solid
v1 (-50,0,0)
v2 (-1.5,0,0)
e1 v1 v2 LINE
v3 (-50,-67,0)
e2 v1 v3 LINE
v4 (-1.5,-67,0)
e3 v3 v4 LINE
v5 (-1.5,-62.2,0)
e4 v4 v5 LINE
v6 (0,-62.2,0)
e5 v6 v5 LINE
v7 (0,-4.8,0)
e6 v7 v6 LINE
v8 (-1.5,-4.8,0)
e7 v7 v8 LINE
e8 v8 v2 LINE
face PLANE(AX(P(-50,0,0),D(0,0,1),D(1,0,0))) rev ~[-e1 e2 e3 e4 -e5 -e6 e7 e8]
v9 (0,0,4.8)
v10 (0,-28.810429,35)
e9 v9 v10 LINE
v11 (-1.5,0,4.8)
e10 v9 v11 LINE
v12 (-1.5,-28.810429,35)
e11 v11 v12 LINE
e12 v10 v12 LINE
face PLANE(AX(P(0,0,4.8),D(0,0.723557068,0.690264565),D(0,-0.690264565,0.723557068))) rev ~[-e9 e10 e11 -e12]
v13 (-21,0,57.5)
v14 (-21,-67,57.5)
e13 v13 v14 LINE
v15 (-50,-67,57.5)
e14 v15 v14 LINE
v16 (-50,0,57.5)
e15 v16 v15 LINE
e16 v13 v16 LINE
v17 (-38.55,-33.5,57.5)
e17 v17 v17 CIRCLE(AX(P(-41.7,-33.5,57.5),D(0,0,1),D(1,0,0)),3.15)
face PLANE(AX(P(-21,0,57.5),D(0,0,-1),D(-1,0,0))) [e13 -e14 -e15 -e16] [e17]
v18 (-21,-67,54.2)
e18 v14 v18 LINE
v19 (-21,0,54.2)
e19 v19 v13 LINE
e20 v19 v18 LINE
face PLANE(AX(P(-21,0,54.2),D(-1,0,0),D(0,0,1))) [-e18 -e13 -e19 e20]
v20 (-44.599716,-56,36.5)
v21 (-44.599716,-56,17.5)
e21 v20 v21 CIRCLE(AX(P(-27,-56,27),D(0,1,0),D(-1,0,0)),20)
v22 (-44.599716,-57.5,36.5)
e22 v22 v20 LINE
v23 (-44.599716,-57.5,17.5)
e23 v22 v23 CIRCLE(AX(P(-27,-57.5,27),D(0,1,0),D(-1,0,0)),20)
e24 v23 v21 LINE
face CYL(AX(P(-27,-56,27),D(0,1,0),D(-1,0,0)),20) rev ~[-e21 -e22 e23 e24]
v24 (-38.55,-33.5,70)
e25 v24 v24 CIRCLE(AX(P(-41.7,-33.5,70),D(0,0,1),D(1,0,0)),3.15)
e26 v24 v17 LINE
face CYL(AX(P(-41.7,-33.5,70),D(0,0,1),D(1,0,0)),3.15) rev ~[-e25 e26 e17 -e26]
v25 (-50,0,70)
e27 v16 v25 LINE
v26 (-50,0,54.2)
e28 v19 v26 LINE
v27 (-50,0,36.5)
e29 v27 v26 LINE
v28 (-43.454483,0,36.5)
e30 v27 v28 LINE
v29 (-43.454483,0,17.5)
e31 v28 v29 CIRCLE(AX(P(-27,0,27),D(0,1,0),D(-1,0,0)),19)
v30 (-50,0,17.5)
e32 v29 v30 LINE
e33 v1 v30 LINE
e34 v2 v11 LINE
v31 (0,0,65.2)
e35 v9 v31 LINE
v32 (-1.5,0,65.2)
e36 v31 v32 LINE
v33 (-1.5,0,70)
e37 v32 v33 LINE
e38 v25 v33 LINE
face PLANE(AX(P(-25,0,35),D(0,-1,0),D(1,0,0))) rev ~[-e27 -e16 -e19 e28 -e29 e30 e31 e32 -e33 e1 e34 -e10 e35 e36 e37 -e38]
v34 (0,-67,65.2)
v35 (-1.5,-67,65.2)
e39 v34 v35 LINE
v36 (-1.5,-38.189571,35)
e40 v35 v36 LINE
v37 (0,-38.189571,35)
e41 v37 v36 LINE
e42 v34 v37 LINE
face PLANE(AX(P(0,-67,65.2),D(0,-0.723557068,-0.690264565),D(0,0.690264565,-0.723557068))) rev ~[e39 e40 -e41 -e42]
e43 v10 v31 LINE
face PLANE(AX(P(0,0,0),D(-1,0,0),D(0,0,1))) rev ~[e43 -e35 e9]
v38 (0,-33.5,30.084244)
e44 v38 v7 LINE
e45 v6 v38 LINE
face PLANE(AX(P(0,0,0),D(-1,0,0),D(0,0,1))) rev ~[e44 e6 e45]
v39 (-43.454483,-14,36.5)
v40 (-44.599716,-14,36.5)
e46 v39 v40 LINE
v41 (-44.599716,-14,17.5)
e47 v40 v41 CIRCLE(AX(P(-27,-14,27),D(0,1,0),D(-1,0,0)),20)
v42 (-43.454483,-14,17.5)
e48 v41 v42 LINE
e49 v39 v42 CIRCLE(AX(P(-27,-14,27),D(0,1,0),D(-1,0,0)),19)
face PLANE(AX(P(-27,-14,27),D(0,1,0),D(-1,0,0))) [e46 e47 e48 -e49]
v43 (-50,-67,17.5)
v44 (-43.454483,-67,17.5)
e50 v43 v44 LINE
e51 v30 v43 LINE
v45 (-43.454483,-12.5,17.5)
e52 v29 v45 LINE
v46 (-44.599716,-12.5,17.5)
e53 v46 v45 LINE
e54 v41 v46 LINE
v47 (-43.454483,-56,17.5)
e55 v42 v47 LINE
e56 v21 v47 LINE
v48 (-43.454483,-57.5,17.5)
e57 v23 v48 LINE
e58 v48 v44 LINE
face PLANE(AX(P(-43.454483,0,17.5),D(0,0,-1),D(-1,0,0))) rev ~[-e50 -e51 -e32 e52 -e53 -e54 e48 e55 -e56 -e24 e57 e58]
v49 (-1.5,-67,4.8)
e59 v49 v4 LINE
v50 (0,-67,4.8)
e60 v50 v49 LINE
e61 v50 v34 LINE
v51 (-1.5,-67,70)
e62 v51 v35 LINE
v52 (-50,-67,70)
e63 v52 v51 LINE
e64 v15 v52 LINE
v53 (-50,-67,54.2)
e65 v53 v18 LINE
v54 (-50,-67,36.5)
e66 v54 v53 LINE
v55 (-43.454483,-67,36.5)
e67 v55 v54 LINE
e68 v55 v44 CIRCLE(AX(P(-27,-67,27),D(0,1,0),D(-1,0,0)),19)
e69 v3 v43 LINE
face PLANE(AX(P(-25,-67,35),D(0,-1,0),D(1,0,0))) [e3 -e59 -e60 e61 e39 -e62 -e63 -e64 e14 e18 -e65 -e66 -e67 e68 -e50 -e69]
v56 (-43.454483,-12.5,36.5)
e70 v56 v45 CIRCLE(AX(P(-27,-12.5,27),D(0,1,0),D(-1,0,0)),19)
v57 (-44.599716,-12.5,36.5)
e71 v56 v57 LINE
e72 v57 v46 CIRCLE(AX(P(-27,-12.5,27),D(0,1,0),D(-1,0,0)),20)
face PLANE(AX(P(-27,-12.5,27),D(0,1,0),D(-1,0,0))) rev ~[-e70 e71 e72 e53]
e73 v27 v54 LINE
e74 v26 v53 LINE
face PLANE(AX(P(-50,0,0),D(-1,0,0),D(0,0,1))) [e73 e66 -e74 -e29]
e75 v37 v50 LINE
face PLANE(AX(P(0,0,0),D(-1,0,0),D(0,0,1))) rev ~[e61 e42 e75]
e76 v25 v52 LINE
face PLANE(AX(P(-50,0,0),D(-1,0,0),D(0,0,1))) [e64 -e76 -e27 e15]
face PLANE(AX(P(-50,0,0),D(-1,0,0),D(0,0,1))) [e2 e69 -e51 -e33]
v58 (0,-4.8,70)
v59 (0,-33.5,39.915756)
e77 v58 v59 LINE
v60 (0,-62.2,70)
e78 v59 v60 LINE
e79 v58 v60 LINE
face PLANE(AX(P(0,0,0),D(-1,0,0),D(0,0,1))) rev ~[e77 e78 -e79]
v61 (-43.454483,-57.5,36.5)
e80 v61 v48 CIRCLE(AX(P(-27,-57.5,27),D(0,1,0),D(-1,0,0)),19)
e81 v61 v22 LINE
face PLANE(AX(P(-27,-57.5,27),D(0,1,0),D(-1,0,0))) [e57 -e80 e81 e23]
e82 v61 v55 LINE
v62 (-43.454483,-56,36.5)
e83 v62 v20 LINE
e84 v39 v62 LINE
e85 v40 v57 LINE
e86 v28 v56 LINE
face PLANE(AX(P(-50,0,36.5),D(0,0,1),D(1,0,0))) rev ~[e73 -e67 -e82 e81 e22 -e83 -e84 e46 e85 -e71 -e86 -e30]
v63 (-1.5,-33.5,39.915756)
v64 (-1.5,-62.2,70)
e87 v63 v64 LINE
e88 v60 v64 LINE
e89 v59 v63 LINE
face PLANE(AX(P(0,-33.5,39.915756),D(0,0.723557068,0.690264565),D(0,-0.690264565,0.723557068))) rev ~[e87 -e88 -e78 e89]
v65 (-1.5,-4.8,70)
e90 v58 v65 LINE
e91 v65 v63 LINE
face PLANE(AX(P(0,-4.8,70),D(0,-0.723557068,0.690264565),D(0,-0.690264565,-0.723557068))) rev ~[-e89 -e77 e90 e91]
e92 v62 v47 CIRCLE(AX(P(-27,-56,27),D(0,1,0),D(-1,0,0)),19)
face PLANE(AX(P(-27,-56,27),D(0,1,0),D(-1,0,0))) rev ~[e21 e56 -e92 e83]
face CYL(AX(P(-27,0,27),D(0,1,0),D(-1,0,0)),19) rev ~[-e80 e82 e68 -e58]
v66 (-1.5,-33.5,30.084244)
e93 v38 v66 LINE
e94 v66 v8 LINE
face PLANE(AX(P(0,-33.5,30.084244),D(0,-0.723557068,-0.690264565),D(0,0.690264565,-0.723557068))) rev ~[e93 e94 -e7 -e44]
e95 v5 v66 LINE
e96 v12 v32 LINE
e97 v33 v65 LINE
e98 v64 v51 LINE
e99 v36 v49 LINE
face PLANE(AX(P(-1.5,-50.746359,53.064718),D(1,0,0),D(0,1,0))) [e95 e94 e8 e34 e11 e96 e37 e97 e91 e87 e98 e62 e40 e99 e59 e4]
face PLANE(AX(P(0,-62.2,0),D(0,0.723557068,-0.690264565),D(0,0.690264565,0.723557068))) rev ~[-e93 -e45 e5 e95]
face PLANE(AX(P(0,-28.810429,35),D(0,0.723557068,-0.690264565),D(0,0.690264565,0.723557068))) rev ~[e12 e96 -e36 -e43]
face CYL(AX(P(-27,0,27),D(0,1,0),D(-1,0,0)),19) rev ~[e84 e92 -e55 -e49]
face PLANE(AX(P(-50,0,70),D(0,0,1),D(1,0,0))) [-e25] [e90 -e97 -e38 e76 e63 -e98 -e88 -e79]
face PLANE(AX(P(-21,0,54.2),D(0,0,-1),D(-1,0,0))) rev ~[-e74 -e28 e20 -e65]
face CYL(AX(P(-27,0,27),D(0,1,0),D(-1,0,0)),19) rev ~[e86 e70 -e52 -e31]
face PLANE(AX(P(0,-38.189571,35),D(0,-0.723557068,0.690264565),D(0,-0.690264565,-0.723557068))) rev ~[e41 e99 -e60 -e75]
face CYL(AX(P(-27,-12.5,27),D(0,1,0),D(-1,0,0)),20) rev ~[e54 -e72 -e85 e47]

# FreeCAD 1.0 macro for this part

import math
import FreeCAD as App
import Part
import Sketcher

V = App.Vector
Q = App.Units.Quantity

doc = App.newDocument("Part")
body = doc.addObject("PartDesign::Body", "Body")

# Sketch on XZ plane
sketch1 = body.newObject("Sketcher::SketchObject", "Sketch")
sketch1.AttachmentSupport = (doc.getObject("XZ_Plane"), [""])
sketch1.MapMode = "FlatFace"
sketch1.addGeometry(Part.LineSegment(V(-50, 70, 0), V(-50, 0, 0)), False)
sketch1.addGeometry(Part.LineSegment(V(-50, 0, 0), V(0, 0, 0)), False)
sketch1.addGeometry(Part.LineSegment(V(0, 0, 0), V(0, 70, 0)), False)
sketch1.addGeometry(Part.LineSegment(V(0, 70, 0), V(-50, 70, 0)), False)
sketch1.addConstraint(Sketcher.Constraint("Coincident", 0, 2, 1, 1))
sketch1.addConstraint(Sketcher.Constraint("Coincident", 1, 2, 2, 1))
sketch1.addConstraint(Sketcher.Constraint("Coincident", 2, 2, 3, 1))
sketch1.addConstraint(Sketcher.Constraint("Coincident", 3, 2, 0, 1))
sketch1.addConstraint(Sketcher.Constraint("Vertical", 0))
sketch1.addConstraint(Sketcher.Constraint("Horizontal", 1))
sketch1.addConstraint(Sketcher.Constraint("Vertical", 2))
sketch1.addConstraint(Sketcher.Constraint("Horizontal", 3))
sketch1.addConstraint(Sketcher.Constraint("Coincident", 1, 2, -1, 1))
sketch1.addConstraint(Sketcher.Constraint("DistanceX", 1, 1, 1, 2, Q("50 mm")))
sketch1.addConstraint(Sketcher.Constraint("DistanceY", 0, 2, 0, 1, Q("70 mm")))
pad1 = body.newObject("PartDesign::Pad", "Pad")
pad1.Profile = sketch1
pad1.Length = 67

# Sketch on YZ plane
sketch2 = body.newObject("Sketcher::SketchObject", "Sketch001")
sketch2.AttachmentSupport = (doc.getObject("YZ_Plane"), [""])
sketch2.MapMode = "FlatFace"
sketch2.addGeometry(Part.LineSegment(V(-67, 70, 0), V(-67, 65.2, 0)), False)
sketch2.addGeometry(Part.LineSegment(V(-67, 65.2, 0), V(-38.189571, 35, 0)), False)
sketch2.addGeometry(Part.LineSegment(V(-38.189571, 35, 0), V(-67, 4.8, 0)), False)
sketch2.addGeometry(Part.LineSegment(V(-67, 4.8, 0), V(-67, 0, 0)), False)
sketch2.addGeometry(Part.LineSegment(V(-67, 0, 0), V(-62.2, 0, 0)), False)
sketch2.addGeometry(Part.LineSegment(V(-62.2, 0, 0), V(-33.5, 30.084244, 0)), False)
sketch2.addGeometry(Part.LineSegment(V(-33.5, 30.084244, 0), V(-4.8, 0, 0)), False)
sketch2.addGeometry(Part.LineSegment(V(-4.8, 0, 0), V(0, 0, 0)), False)
sketch2.addGeometry(Part.LineSegment(V(0, 0, 0), V(0, 4.8, 0)), False)
sketch2.addGeometry(Part.LineSegment(V(0, 4.8, 0), V(-28.810429, 35, 0)), False)
sketch2.addGeometry(Part.LineSegment(V(-28.810429, 35, 0), V(0, 65.2, 0)), False)
sketch2.addGeometry(Part.LineSegment(V(0, 65.2, 0), V(0, 70, 0)), False)
sketch2.addGeometry(Part.LineSegment(V(0, 70, 0), V(-4.8, 70, 0)), False)
sketch2.addGeometry(Part.LineSegment(V(-4.8, 70, 0), V(-33.5, 39.915756, 0)), False)
sketch2.addGeometry(Part.LineSegment(V(-33.5, 39.915756, 0), V(-62.2, 70, 0)), False)
sketch2.addGeometry(Part.LineSegment(V(-62.2, 70, 0), V(-67, 70, 0)), False)
sketch2.addConstraint(Sketcher.Constraint("Coincident", 0, 2, 1, 1))
sketch2.addConstraint(Sketcher.Constraint("Coincident", 1, 2, 2, 1))
sketch2.addConstraint(Sketcher.Constraint("Coincident", 2, 2, 3, 1))
sketch2.addConstraint(Sketcher.Constraint("Coincident", 3, 2, 4, 1))
sketch2.addConstraint(Sketcher.Constraint("Coincident", 4, 2, 5, 1))
sketch2.addConstraint(Sketcher.Constraint("Coincident", 5, 2, 6, 1))
sketch2.addConstraint(Sketcher.Constraint("Coincident", 6, 2, 7, 1))
sketch2.addConstraint(Sketcher.Constraint("Coincident", 7, 2, 8, 1))
sketch2.addConstraint(Sketcher.Constraint("Coincident", 8, 2, 9, 1))
sketch2.addConstraint(Sketcher.Constraint("Coincident", 9, 2, 10, 1))
sketch2.addConstraint(Sketcher.Constraint("Coincident", 10, 2, 11, 1))
sketch2.addConstraint(Sketcher.Constraint("Coincident", 11, 2, 12, 1))
sketch2.addConstraint(Sketcher.Constraint("Coincident", 12, 2, 13, 1))
sketch2.addConstraint(Sketcher.Constraint("Coincident", 13, 2, 14, 1))
sketch2.addConstraint(Sketcher.Constraint("Coincident", 14, 2, 15, 1))
sketch2.addConstraint(Sketcher.Constraint("Coincident", 15, 2, 0, 1))
sketch2.addConstraint(Sketcher.Constraint("Vertical", 0))
sketch2.addConstraint(Sketcher.Constraint("Vertical", 3))
sketch2.addConstraint(Sketcher.Constraint("Horizontal", 4))
sketch2.addConstraint(Sketcher.Constraint("Horizontal", 7))
sketch2.addConstraint(Sketcher.Constraint("Vertical", 8))
sketch2.addConstraint(Sketcher.Constraint("Vertical", 11))
sketch2.addConstraint(Sketcher.Constraint("Horizontal", 12))
sketch2.addConstraint(Sketcher.Constraint("Horizontal", 15))
sketch2.addConstraint(Sketcher.Constraint("Coincident", 7, 2, -1, 1))
sketch2.addConstraint(Sketcher.Constraint("PointOnObject", 3, 2, -1))
sketch2.addConstraint(Sketcher.Constraint("PointOnObject", 10, 2, -2))
sketch2.addConstraint(Sketcher.Constraint("Parallel", 2, 5))
sketch2.addConstraint(Sketcher.Constraint("Parallel", 1, 6))
sketch2.addConstraint(Sketcher.Constraint("Parallel", 6, 9))
sketch2.addConstraint(Sketcher.Constraint("Parallel", 5, 10))
sketch2.addConstraint(Sketcher.Constraint("Parallel", 10, 13))
sketch2.addConstraint(Sketcher.Constraint("Parallel", 9, 14))
sketch2.addConstraint(Sketcher.Constraint("Horizontal", 2, 2, 8, 2))
sketch2.addConstraint(Sketcher.Constraint("Horizontal", 1, 2, 9, 2))
sketch2.addConstraint(Sketcher.Constraint("Horizontal", 0, 2, 10, 2))
sketch2.addConstraint(Sketcher.Constraint("Horizontal", 12, 2, 14, 2))
sketch2.addConstraint(Sketcher.Constraint("Vertical", 0, 2, 2, 2))
sketch2.addConstraint(Sketcher.Constraint("Vertical", 6, 2, 12, 2))
sketch2.addConstraint(Sketcher.Constraint("Vertical", 5, 2, 13, 2))
sketch2.addConstraint(Sketcher.Constraint("Equal", 4, 7))
sketch2.addConstraint(Sketcher.Constraint("Equal", 15, 0))
sketch2.addConstraint(Sketcher.Constraint("Equal", 0, 3))
sketch2.addConstraint(Sketcher.Constraint("DistanceX", 4, 1, 4, 2, Q("4.8 mm")))
sketch2.addConstraint(Sketcher.Constraint("DistanceX", 0, 2, -1, 1, Q("67 mm")))
sketch2.addConstraint(Sketcher.Constraint("DistanceY", -1, 1, 1, 2, Q("35 mm")))
sketch2.addConstraint(Sketcher.Constraint("Distance", 1, Q("41.738242 mm")))
pocket1 = body.newObject("PartDesign::Pocket", "Pocket")
pocket1.Profile = sketch2
pocket1.Length = 1.5

# Sketch on XZ plane
sketch3 = body.newObject("Sketcher::SketchObject", "Sketch002")
sketch3.AttachmentSupport = (doc.getObject("XZ_Plane"), [""])
sketch3.MapMode = "FlatFace"
sketch3.addGeometry(Part.LineSegment(V(-21, 57.5, 0), V(-21, 54.2, 0)), False)
sketch3.addGeometry(Part.LineSegment(V(-21, 54.2, 0), V(-50, 54.2, 0)), False)
sketch3.addGeometry(Part.LineSegment(V(-50, 54.2, 0), V(-50, 57.5, 0)), False)
sketch3.addGeometry(Part.LineSegment(V(-50, 57.5, 0), V(-21, 57.5, 0)), False)
sketch3.addGeometry(Part.ArcOfCircle(Part.Circle(V(-27, 27, 0), V(0, 0, 1), 19), math.radians(-150), math.radians(150)), False)
sketch3.addGeometry(Part.LineSegment(V(-43.454483, 17.5, 0), V(-50, 17.5, 0)), False)
sketch3.addGeometry(Part.LineSegment(V(-50, 17.5, 0), V(-50, 36.5, 0)), False)
sketch3.addGeometry(Part.LineSegment(V(-50, 36.5, 0), V(-43.454483, 36.5, 0)), False)
sketch3.addConstraint(Sketcher.Constraint("Coincident", 0, 2, 1, 1))
sketch3.addConstraint(Sketcher.Constraint("Coincident", 1, 2, 2, 1))
sketch3.addConstraint(Sketcher.Constraint("Coincident", 2, 2, 3, 1))
sketch3.addConstraint(Sketcher.Constraint("Coincident", 3, 2, 0, 1))
sketch3.addConstraint(Sketcher.Constraint("Coincident", 4, 1, 5, 1))
sketch3.addConstraint(Sketcher.Constraint("Coincident", 5, 2, 6, 1))
sketch3.addConstraint(Sketcher.Constraint("Coincident", 6, 2, 7, 1))
sketch3.addConstraint(Sketcher.Constraint("Coincident", 7, 2, 4, 2))
sketch3.addConstraint(Sketcher.Constraint("Vertical", 0))
sketch3.addConstraint(Sketcher.Constraint("Horizontal", 1))
sketch3.addConstraint(Sketcher.Constraint("Vertical", 2))
sketch3.addConstraint(Sketcher.Constraint("Horizontal", 3))
sketch3.addConstraint(Sketcher.Constraint("Horizontal", 5))
sketch3.addConstraint(Sketcher.Constraint("Vertical", 6))
sketch3.addConstraint(Sketcher.Constraint("Horizontal", 7))
sketch3.addConstraint(Sketcher.Constraint("Vertical", 2, 2, 5, 2))
sketch3.addConstraint(Sketcher.Constraint("Vertical", 4, 1, 7, 2))
sketch3.addConstraint(Sketcher.Constraint("Radius", 4, Q("19 mm")))
sketch3.addConstraint(Sketcher.Constraint("DistanceX", 1, 2, 1, 1, Q("29 mm")))
sketch3.addConstraint(Sketcher.Constraint("DistanceY", 6, 1, 6, 2, Q("19 mm")))
sketch3.addConstraint(Sketcher.Constraint("DistanceY", 0, 2, 0, 1, Q("3.3 mm")))
sketch3.addConstraint(Sketcher.Constraint("DistanceX", 4, 3, -1, 1, Q("27 mm")))
sketch3.addConstraint(Sketcher.Constraint("DistanceY", -1, 1, 4, 3, Q("27 mm")))
sketch3.addConstraint(Sketcher.Constraint("DistanceX", 0, 2, -1, 1, Q("21 mm")))
sketch3.addConstraint(Sketcher.Constraint("DistanceY", 4, 1, 2, 2, Q("40 mm")))
pocket2 = body.newObject("PartDesign::Pocket", "Pocket001")
pocket2.Profile = sketch3
pocket2.Type = "ThroughAll"
pocket2.Reversed = True

# Sketch on XZ plane
sketch4 = body.newObject("Sketcher::SketchObject", "Sketch003")
sketch4.AttachmentSupport = (doc.getObject("XZ_Plane"), [""])
sketch4.MapMode = "FlatFace"
sketch4.AttachmentOffset = App.Placement(V(0, 0, 12.5), App.Rotation())
sketch4.addGeometry(Part.Circle(V(-27, 27, 0), V(0, 0, 1), 20), False)
sketch4.addConstraint(Sketcher.Constraint("Diameter", 0, Q("40 mm")))
sketch4.addConstraint(Sketcher.Constraint("DistanceX", 0, 3, -1, 1, Q("27 mm")))
sketch4.addConstraint(Sketcher.Constraint("DistanceY", -1, 1, 0, 3, Q("27 mm")))
pocket3 = body.newObject("PartDesign::Pocket", "Pocket002")
pocket3.Profile = sketch4
pocket3.Length = 1.5
pocket3.Reversed = True

# Sketch on XZ plane
sketch5 = body.newObject("Sketcher::SketchObject", "Sketch004")
sketch5.AttachmentSupport = (doc.getObject("XZ_Plane"), [""])
sketch5.MapMode = "FlatFace"
sketch5.AttachmentOffset = App.Placement(V(0, 0, 56), App.Rotation())
sketch5.addGeometry(Part.Circle(V(-27, 27, 0), V(0, 0, 1), 20), False)
sketch5.addConstraint(Sketcher.Constraint("Diameter", 0, Q("40 mm")))
sketch5.addConstraint(Sketcher.Constraint("DistanceX", 0, 3, -1, 1, Q("27 mm")))
sketch5.addConstraint(Sketcher.Constraint("DistanceY", -1, 1, 0, 3, Q("27 mm")))
pocket4 = body.newObject("PartDesign::Pocket", "Pocket003")
pocket4.Profile = sketch5
pocket4.Length = 1.5
pocket4.Reversed = True

# Sketch on XY plane
sketch6 = body.newObject("Sketcher::SketchObject", "Sketch005")
sketch6.AttachmentSupport = (doc.getObject("XY_Plane"), [""])
sketch6.MapMode = "FlatFace"
sketch6.AttachmentOffset = App.Placement(V(0, 0, 70), App.Rotation())
sketch6.addGeometry(Part.Circle(V(-41.7, -33.5, 0), V(0, 0, 1), 3.15), False)
sketch6.addConstraint(Sketcher.Constraint("Diameter", 0, Q("6.3 mm")))
sketch6.addConstraint(Sketcher.Constraint("DistanceX", 0, 3, -1, 1, Q("41.7 mm")))
sketch6.addConstraint(Sketcher.Constraint("DistanceY", 0, 3, -1, 1, Q("33.5 mm")))
pocket5 = body.newObject("PartDesign::Pocket", "Pocket004")
pocket5.Profile = sketch6
pocket5.Length = 12.5

doc.recompute()
